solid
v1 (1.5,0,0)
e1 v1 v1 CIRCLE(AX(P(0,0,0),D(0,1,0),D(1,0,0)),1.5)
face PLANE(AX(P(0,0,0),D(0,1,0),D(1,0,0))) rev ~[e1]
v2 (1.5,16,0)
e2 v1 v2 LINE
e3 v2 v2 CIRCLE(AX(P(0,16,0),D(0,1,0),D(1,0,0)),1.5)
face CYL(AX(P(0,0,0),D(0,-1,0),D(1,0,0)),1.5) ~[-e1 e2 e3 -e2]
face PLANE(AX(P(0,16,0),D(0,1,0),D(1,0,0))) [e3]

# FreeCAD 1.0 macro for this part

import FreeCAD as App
import Part
import Sketcher
from FreeCAD import Vector

doc = App.newDocument("Part")
params = doc.addObject("Spreadsheet::Sheet", "Params")
for row, (alias, value) in enumerate([
    ("sketch1_diameter", "3 mm"),
    ("pad1_length", "16 mm"),
], start=1):
    params.set(f"A{row}", alias)
    params.set(f"B{row}", "=" + value)
    params.setAlias(f"B{row}", alias)

body = doc.addObject("PartDesign::Body", "Body")

# Sketch on XZ plane
sketch1 = body.newObject("Sketcher::SketchObject", "Sketch")
sketch1.AttachmentSupport = (doc.getObject("XZ_Plane"), [""])
sketch1.MapMode = "FlatFace"
sketch1.addGeometry(Part.Circle(Vector(0, 0, 0), Vector(0, 0, 1), 1.5), False)
sketch1.addConstraint([
    Sketcher.Constraint("Coincident", 0, 3, -1, 1),
    Sketcher.Constraint("Diameter", 0, 3.0),
])
sketch1.setExpression("Constraints[1]", "Params.sketch1_diameter")
pad1 = body.newObject("PartDesign::Pad", "Pad")
pad1.Profile = sketch1
pad1.setExpression("Length", "Params.pad1_length")
pad1.Reversed = True

doc.recompute()
